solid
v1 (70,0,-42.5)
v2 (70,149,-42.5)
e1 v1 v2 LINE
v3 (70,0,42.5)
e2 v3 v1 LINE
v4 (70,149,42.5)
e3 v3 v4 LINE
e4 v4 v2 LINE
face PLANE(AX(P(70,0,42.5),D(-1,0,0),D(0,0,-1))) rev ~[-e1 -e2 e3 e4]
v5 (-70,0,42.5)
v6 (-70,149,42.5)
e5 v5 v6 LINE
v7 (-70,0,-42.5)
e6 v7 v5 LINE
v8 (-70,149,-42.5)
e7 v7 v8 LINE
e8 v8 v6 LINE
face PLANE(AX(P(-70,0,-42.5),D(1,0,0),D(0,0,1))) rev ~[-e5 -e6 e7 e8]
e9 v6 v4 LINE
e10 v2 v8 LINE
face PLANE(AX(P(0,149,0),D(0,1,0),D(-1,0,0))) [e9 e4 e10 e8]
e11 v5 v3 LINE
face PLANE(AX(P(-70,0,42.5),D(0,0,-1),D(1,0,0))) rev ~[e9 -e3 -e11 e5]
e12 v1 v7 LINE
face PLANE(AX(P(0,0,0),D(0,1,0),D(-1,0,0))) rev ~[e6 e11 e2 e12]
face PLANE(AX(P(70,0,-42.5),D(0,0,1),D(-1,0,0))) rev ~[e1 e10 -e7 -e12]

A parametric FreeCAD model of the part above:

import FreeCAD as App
import Part
import Sketcher

V = App.Vector

doc = App.newDocument("Part")
body = doc.addObject("PartDesign::Body", "Body")

# Sketch on XZ plane
sketch1 = body.newObject("Sketcher::SketchObject", "Sketch")
sketch1.AttachmentSupport = (doc.getObject("XZ_Plane"), [""])
sketch1.MapMode = "FlatFace"
sketch1.addGeometry([
    Part.LineSegment(V(70, 42, 0), V(70, -42, 0)),
    Part.LineSegment(V(70, -42, 0), V(-70, -42, 0)),
    Part.LineSegment(V(-70, -42, 0), V(-70, 42, 0)),
    Part.LineSegment(V(-70, 42, 0), V(70, 42, 0)),
], False)
sketch1.addConstraint([
    Sketcher.Constraint("Coincident", 0, 2, 1, 1),
    Sketcher.Constraint("Coincident", 1, 2, 2, 1),
    Sketcher.Constraint("Coincident", 2, 2, 3, 1),
    Sketcher.Constraint("Coincident", 3, 2, 0, 1),
    Sketcher.Constraint("Vertical", 0),
    Sketcher.Constraint("Horizontal", 1),
    Sketcher.Constraint("Vertical", 2),
    Sketcher.Constraint("Horizontal", 3),
    Sketcher.Constraint("Symmetric", 0, 2, 2, 2, -1, 1),
    Sketcher.Constraint("DistanceX", 1, 2, 1, 1, 140.0),
    Sketcher.Constraint("DistanceY", 0, 2, 0, 1, 85.0),
])
pad1 = body.newObject("PartDesign::Pad", "Pad")
pad1.Profile = sketch1
pad1.Length = 149
pad1.Reversed = True

doc.recompute()
